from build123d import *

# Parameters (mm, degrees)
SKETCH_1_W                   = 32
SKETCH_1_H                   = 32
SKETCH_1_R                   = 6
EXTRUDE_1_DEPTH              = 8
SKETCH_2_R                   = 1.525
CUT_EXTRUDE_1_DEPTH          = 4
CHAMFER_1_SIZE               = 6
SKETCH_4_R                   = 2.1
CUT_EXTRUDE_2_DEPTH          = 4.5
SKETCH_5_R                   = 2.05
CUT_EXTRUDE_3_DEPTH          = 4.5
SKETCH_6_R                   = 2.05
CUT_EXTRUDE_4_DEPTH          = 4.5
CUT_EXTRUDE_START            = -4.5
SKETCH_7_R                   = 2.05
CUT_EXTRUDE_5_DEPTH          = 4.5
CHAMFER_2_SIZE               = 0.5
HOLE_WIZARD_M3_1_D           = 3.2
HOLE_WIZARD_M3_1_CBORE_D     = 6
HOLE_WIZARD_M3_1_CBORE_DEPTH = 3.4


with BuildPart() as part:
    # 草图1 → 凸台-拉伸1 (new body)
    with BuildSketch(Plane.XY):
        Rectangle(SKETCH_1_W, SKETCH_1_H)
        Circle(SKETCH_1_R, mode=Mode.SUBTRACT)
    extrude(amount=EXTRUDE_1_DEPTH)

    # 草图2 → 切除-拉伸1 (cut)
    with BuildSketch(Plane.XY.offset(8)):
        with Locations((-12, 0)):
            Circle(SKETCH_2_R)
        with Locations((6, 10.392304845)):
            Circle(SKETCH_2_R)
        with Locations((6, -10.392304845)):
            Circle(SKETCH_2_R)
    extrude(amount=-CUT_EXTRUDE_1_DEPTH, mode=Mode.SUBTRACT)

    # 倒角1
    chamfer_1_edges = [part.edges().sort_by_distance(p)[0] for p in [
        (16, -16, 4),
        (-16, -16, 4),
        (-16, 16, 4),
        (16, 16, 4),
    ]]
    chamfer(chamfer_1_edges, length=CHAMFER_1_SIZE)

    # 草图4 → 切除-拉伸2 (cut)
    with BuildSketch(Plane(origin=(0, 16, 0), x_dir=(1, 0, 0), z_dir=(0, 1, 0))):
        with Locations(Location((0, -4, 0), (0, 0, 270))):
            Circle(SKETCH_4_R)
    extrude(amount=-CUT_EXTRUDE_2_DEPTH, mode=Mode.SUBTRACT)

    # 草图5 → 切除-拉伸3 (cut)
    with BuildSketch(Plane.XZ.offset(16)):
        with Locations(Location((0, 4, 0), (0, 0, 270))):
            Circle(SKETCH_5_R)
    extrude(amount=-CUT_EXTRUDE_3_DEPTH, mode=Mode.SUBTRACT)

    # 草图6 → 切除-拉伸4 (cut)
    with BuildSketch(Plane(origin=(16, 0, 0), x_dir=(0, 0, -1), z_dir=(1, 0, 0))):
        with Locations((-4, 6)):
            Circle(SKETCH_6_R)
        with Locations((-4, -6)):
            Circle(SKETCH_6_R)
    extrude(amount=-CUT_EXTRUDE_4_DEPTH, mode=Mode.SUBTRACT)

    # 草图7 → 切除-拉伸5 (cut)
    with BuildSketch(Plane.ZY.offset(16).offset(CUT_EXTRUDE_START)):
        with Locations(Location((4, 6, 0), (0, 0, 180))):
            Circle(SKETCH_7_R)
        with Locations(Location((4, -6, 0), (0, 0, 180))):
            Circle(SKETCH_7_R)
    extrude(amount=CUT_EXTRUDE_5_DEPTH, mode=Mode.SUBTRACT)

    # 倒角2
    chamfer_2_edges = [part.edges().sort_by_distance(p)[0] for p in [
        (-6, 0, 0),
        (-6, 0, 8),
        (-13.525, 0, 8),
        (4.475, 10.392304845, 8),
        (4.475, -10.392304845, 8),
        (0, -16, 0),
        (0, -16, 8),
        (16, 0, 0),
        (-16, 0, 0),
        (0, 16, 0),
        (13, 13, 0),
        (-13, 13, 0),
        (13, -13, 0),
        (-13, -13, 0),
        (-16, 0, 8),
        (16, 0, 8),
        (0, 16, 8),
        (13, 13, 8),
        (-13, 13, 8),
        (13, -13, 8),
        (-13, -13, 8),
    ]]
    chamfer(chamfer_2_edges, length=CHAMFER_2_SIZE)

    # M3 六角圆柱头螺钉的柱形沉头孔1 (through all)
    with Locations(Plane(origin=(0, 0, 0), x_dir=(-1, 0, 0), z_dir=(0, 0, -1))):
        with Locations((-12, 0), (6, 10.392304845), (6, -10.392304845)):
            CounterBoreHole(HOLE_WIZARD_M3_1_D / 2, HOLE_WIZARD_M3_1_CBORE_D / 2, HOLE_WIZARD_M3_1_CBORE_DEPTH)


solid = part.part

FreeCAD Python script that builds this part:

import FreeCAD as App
import Part
import Sketcher
Q = App.Units.Quantity


def edges_at(feature, points):
    """Names of the edges that pass closest to the given points."""
    edges = feature.Shape.Edges
    near = lambda p: min(range(len(edges)), key=lambda i: edges[i].distToShape(Part.Vertex(*p))[0])
    return sorted({f"Edge{near(p) + 1}" for p in points})


def add_polygon(sketch, points):
    """Adds a closed chain of lines whose ends are joined by coincident constraints."""
    first, n = sketch.GeometryCount, len(points)
    for a, b in zip(points, points[1:] + points[:1]):
        sketch.addGeometry(Part.LineSegment(App.Vector(*a, 0), App.Vector(*b, 0)), False)
    for i in range(n):
        sketch.addConstraint(Sketcher.Constraint("Coincident", first + i, 2, first + (i + 1) % n, 1))

doc = App.newDocument("Part")
params = doc.addObject("Spreadsheet::Sheet", "Params")
for row, (alias, value) in enumerate([
    ("sketch1_diameter", "12 mm"),
    ("sketch1_width", "32 mm"),
    ("pad1_length", "8 mm"),
    ("sketch2_diameter", "3.05 mm"),
    ("pocket1_length", "4 mm"),
    ("chamfer_size", "6 mm"),
    ("sketch3_diameter", "4.2 mm"),
    ("pocket2_length", "4.5 mm"),
    ("sketch4_diameter", "4.1 mm"),
    ("pocket3_length", "4.5 mm"),
    ("sketch5_diameter", "4.1 mm"),
    ("pocket4_length", "4.5 mm"),
    ("sketch6_diameter", "4.1 mm"),
    ("pocket5_length", "4.5 mm"),
    ("chamfer2_size", "0.5 mm"),
    ("sketch7_diameter", "3.2 mm"),
    ("hole_diameter", "3.2 mm"),
    ("hole_cbore_diameter", "6 mm"),
    ("hole_cbore_depth", "3.4 mm"),
], start=1):
    params.set(f"A{row}", alias)
    params.set(f"B{row}", "=" + value)
    params.setAlias(f"B{row}", alias)

body = doc.addObject("PartDesign::Body", "Body")

sketch1 = body.newObject("Sketcher::SketchObject", "Sketch")
sketch1.AttachmentSupport = (doc.getObject("XY_Plane"), [""])
sketch1.MapMode = "FlatFace"
add_polygon(sketch1, [(-16, 16), (-16, -16), (16, -16), (16, 16)])
sketch1.addGeometry(Part.Circle(App.Vector(0, 0, 0), App.Vector(0, 0, 1), 6), False)
sketch1.addConstraint(Sketcher.Constraint("Vertical", 0))
sketch1.addConstraint(Sketcher.Constraint("Horizontal", 1))
sketch1.addConstraint(Sketcher.Constraint("Vertical", 2))
sketch1.addConstraint(Sketcher.Constraint("Horizontal", 3))
sketch1.addConstraint(Sketcher.Constraint("Coincident", 4, 3, -1, 1))
sketch1.addConstraint(Sketcher.Constraint("Symmetric", 0, 2, 2, 2, -1, 1))
sketch1.addConstraint(Sketcher.Constraint("Equal", 3, 0))
sketch1.addConstraint(Sketcher.Constraint("Diameter", 4, Q("12 mm")))
sketch1.addConstraint(Sketcher.Constraint("DistanceX", 1, 1, 1, 2, Q("32 mm")))
sketch1.setExpression("Constraints[11]", "Params.sketch1_diameter")
sketch1.setExpression("Constraints[12]", "Params.sketch1_width")
pad1 = body.newObject("PartDesign::Pad", "Pad")
pad1.Profile = sketch1
pad1.setExpression("Length", "Params.pad1_length")

sketch2 = body.newObject("Sketcher::SketchObject", "Sketch001")
sketch2.AttachmentSupport = (doc.getObject("XY_Plane"), [""])
sketch2.MapMode = "FlatFace"
sketch2.AttachmentOffset = App.Placement(App.Vector(0, 0, 8), App.Rotation())
sketch2.addGeometry(Part.Circle(App.Vector(-12, 0, 0), App.Vector(0, 0, 1), 1.5), False)
sketch2.addGeometry(Part.Circle(App.Vector(6, 10.4, 0), App.Vector(0, 0, 1), 1.5), False)
sketch2.addGeometry(Part.Circle(App.Vector(6, -10.4, 0), App.Vector(0, 0, 1), 1.5), False)
sketch2.addConstraint(Sketcher.Constraint("Equal", 0, 1))
sketch2.addConstraint(Sketcher.Constraint("Equal", 1, 2))
sketch2.addConstraint(Sketcher.Constraint("Symmetric", 1, 3, 2, 3, -1))
sketch2.addConstraint(Sketcher.Constraint("PointOnObject", 0, 3, -1))
sketch2.addConstraint(Sketcher.Constraint("Diameter", 0, Q("3.05 mm")))
sketch2.addConstraint(Sketcher.Constraint("DistanceX", 0, 3, -1, 1, Q("12 mm")))
sketch2.addConstraint(Sketcher.Constraint("DistanceX", -1, 1, 1, 3, Q("6 mm")))
sketch2.addConstraint(Sketcher.Constraint("DistanceY", 2, 3, 1, 3, Q("20.78461 mm")))
sketch2.setExpression("Constraints[4]", "Params.sketch2_diameter")
pocket1 = body.newObject("PartDesign::Pocket", "Pocket")
pocket1.Profile = sketch2
pocket1.setExpression("Length", "Params.pocket1_length")
doc.recompute()

chamfer = body.newObject("PartDesign::Chamfer", "Chamfer")
chamfer.Base = (pocket1, edges_at(pocket1, [
    (16, -16, 4),
    (-16, -16, 4),
    (-16, 16, 4),
    (16, 16, 4),
]))
chamfer.setExpression("Size", "Params.chamfer_size")

sketch3 = body.newObject("Sketcher::SketchObject", "Sketch002")
sketch3.AttachmentSupport = (doc.getObject("XZ_Plane"), [""])
sketch3.MapMode = "FlatFace"
sketch3.AttachmentOffset = App.Placement(App.Vector(0, 0, -16), App.Rotation())
sketch3.addGeometry(Part.Circle(App.Vector(0, 4, 0), App.Vector(0, 0, 1), 2.1), False)
sketch3.addConstraint(Sketcher.Constraint("PointOnObject", 0, 3, -2))
sketch3.addConstraint(Sketcher.Constraint("Diameter", 0, Q("4.2 mm")))
sketch3.addConstraint(Sketcher.Constraint("DistanceY", -1, 1, 0, 3, Q("4 mm")))
sketch3.setExpression("Constraints[1]", "Params.sketch3_diameter")
pocket2 = body.newObject("PartDesign::Pocket", "Pocket001")
pocket2.Profile = sketch3
pocket2.setExpression("Length", "Params.pocket2_length")
pocket2.Reversed = True

sketch4 = body.newObject("Sketcher::SketchObject", "Sketch003")
sketch4.AttachmentSupport = (doc.getObject("XZ_Plane"), [""])
sketch4.MapMode = "FlatFace"
sketch4.AttachmentOffset = App.Placement(App.Vector(0, 0, 16), App.Rotation())
sketch4.addGeometry(Part.Circle(App.Vector(0, 4, 0), App.Vector(0, 0, 1), 2), False)
sketch4.addConstraint(Sketcher.Constraint("PointOnObject", 0, 3, -2))
sketch4.addConstraint(Sketcher.Constraint("Diameter", 0, Q("4.1 mm")))
sketch4.addConstraint(Sketcher.Constraint("DistanceY", -1, 1, 0, 3, Q("4 mm")))
sketch4.setExpression("Constraints[1]", "Params.sketch4_diameter")
pocket3 = body.newObject("PartDesign::Pocket", "Pocket002")
pocket3.Profile = sketch4
pocket3.setExpression("Length", "Params.pocket3_length")

sketch5 = body.newObject("Sketcher::SketchObject", "Sketch004")
sketch5.AttachmentSupport = (doc.getObject("YZ_Plane"), [""])
sketch5.MapMode = "FlatFace"
sketch5.AttachmentOffset = App.Placement(App.Vector(0, 0, 16), App.Rotation())
sketch5.addGeometry(Part.Circle(App.Vector(6, 4, 0), App.Vector(0, 0, 1), 2), False)
sketch5.addGeometry(Part.Circle(App.Vector(-6, 4, 0), App.Vector(0, 0, 1), 2), False)
sketch5.addConstraint(Sketcher.Constraint("Equal", 0, 1))
sketch5.addConstraint(Sketcher.Constraint("Symmetric", 0, 3, 1, 3, -2))
sketch5.addConstraint(Sketcher.Constraint("Diameter", 0, Q("4.1 mm")))
sketch5.addConstraint(Sketcher.Constraint("DistanceX", -1, 1, 0, 3, Q("6 mm")))
sketch5.addConstraint(Sketcher.Constraint("DistanceY", -1, 1, 0, 3, Q("4 mm")))
sketch5.setExpression("Constraints[2]", "Params.sketch5_diameter")
pocket4 = body.newObject("PartDesign::Pocket", "Pocket003")
pocket4.Profile = sketch5
pocket4.setExpression("Length", "Params.pocket4_length")

sketch6 = body.newObject("Sketcher::SketchObject", "Sketch005")
sketch6.AttachmentSupport = (doc.getObject("YZ_Plane"), [""])
sketch6.MapMode = "FlatFace"
sketch6.AttachmentOffset = App.Placement(App.Vector(0, 0, -11.5), App.Rotation())
sketch6.addGeometry(Part.Circle(App.Vector(6, 4, 0), App.Vector(0, 0, 1), 2), False)
sketch6.addGeometry(Part.Circle(App.Vector(-6, 4, 0), App.Vector(0, 0, 1), 2), False)
sketch6.addConstraint(Sketcher.Constraint("Equal", 0, 1))
sketch6.addConstraint(Sketcher.Constraint("Symmetric", 0, 3, 1, 3, -2))
sketch6.addConstraint(Sketcher.Constraint("Diameter", 0, Q("4.1 mm")))
sketch6.addConstraint(Sketcher.Constraint("DistanceX", -1, 1, 0, 3, Q("6 mm")))
sketch6.addConstraint(Sketcher.Constraint("DistanceY", -1, 1, 0, 3, Q("4 mm")))
sketch6.setExpression("Constraints[2]", "Params.sketch6_diameter")
pocket5 = body.newObject("PartDesign::Pocket", "Pocket004")
pocket5.Profile = sketch6
pocket5.setExpression("Length", "Params.pocket5_length")
doc.recompute()

chamfer2 = body.newObject("PartDesign::Chamfer", "Chamfer001")
chamfer2.Base = (pocket5, edges_at(pocket5, [
    (-6, 0, 0),
    (-6, 0, 8),
    (-13.525, 0, 8),
    (4.475, 10.392, 8),
    (4.475, -10.392, 8),
    (0, -16, 0),
    (0, -16, 8),
    (16, 0, 0),
    (-16, 0, 0),
    (0, 16, 0),
    (13, 13, 0),
    (-13, 13, 0),
    (13, -13, 0),
    (-13, -13, 0),
    (-16, 0, 8),
    (16, 0, 8),
    (0, 16, 8),
    (13, 13, 8),
    (-13, 13, 8),
    (13, -13, 8),
    (-13, -13, 8),
]))
chamfer2.setExpression("Size", "Params.chamfer2_size")

sketch7 = body.newObject("Sketcher::SketchObject", "Sketch006")
sketch7.AttachmentSupport = (doc.getObject("XY_Plane"), [""])
sketch7.MapMode = "FlatFace"
sketch7.addGeometry(Part.Circle(App.Vector(12, 0, 0), App.Vector(0, 0, 1), 1.6), False)
sketch7.addGeometry(Part.Circle(App.Vector(-6, 10.4, 0), App.Vector(0, 0, 1), 1.6), False)
sketch7.addGeometry(Part.Circle(App.Vector(-6, -10.4, 0), App.Vector(0, 0, 1), 1.6), False)
sketch7.addConstraint(Sketcher.Constraint("Equal", 0, 1))
sketch7.addConstraint(Sketcher.Constraint("Equal", 1, 2))
sketch7.addConstraint(Sketcher.Constraint("Symmetric", 1, 3, 2, 3, -1))
sketch7.addConstraint(Sketcher.Constraint("PointOnObject", 0, 3, -1))
sketch7.addConstraint(Sketcher.Constraint("Diameter", 0, Q("3.2 mm")))
sketch7.addConstraint(Sketcher.Constraint("DistanceX", -1, 1, 0, 3, Q("12 mm")))
sketch7.addConstraint(Sketcher.Constraint("DistanceX", 1, 3, -1, 1, Q("6 mm")))
sketch7.addConstraint(Sketcher.Constraint("DistanceY", 2, 3, 1, 3, Q("20.78461 mm")))
sketch7.setExpression("Constraints[4]", "Params.sketch7_diameter")
doc.recompute()
hole = body.newObject("PartDesign::Hole", "Hole")
hole.Profile = sketch7
hole.ThreadType = "None"
hole.setExpression("Diameter", "Params.hole_diameter")
hole.DepthType = "ThroughAll"
hole.HoleCutType = "Counterbore"
hole.setExpression("HoleCutDiameter", "Params.hole_cbore_diameter")
hole.setExpression("HoleCutDepth", "Params.hole_cbore_depth")
hole.Reversed = True

doc.recompute()
